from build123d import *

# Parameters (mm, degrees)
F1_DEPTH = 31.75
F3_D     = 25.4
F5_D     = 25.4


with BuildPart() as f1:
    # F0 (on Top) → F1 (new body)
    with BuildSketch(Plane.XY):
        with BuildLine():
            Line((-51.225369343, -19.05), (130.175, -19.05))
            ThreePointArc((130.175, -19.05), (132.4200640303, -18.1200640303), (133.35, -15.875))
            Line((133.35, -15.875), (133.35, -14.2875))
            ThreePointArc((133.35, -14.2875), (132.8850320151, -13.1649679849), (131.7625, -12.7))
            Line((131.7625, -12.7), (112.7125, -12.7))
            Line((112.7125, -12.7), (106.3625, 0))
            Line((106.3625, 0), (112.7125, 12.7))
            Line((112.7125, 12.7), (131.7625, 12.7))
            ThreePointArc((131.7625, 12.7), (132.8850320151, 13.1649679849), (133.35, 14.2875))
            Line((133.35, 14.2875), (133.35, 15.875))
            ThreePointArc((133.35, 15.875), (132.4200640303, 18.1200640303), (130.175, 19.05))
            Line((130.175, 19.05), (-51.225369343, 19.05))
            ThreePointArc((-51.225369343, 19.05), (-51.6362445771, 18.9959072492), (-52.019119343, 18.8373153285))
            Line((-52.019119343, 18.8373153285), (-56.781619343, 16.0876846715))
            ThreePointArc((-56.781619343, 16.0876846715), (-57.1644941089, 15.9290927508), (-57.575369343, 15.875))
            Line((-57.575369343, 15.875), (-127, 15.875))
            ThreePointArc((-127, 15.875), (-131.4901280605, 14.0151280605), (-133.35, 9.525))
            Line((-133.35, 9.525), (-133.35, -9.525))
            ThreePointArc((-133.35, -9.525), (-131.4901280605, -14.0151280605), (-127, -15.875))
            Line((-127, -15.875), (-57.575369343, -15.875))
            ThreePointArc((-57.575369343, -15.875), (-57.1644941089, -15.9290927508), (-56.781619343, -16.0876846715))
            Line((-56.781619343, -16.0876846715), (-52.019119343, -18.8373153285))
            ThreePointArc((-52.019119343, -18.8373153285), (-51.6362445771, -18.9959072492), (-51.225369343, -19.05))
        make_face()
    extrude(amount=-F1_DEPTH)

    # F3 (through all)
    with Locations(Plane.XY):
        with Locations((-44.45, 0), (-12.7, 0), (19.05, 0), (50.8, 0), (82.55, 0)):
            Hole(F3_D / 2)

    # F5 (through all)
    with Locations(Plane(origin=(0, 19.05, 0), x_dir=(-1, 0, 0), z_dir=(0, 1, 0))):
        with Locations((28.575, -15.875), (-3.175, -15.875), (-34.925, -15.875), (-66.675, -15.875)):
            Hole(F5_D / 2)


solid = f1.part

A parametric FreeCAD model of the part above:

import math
import FreeCAD as App
import Part
import Sketcher
Q = App.Units.Quantity

doc = App.newDocument("Part")
body = doc.addObject("PartDesign::Body", "Body")

# Sketch on XY plane
sketch1 = body.newObject("Sketcher::SketchObject", "Sketch")
sketch1.AttachmentSupport = (doc.getObject("XY_Plane"), [""])
sketch1.MapMode = "FlatFace"
sketch1.addGeometry([
    Part.LineSegment(App.Vector(-51.2, -19.1, 0), App.Vector(130.2, -19.1, 0)),  # 0
    Part.ArcOfCircle(Part.Circle(App.Vector(130.2, -15.9, 0), App.Vector(0, 0, 1), 3.2), math.radians(-90), math.radians(0)),  # 1
    Part.LineSegment(App.Vector(133.3, -15.9, 0), App.Vector(133.3, -14.3, 0)),  # 2
    Part.ArcOfCircle(Part.Circle(App.Vector(131.8, -14.3, 0), App.Vector(0, 0, 1), 1.6), math.radians(0), math.radians(90)),  # 3
    Part.LineSegment(App.Vector(131.8, -12.7, 0), App.Vector(112.7, -12.7, 0)),  # 4
    Part.LineSegment(App.Vector(112.7, -12.7, 0), App.Vector(106.4, 0, 0)),  # 5
    Part.LineSegment(App.Vector(106.4, 0, 0), App.Vector(112.7, 12.7, 0)),  # 6
    Part.LineSegment(App.Vector(112.7, 12.7, 0), App.Vector(131.8, 12.7, 0)),  # 7
    Part.ArcOfCircle(Part.Circle(App.Vector(131.8, 14.3, 0), App.Vector(0, 0, 1), 1.6), math.radians(-90), math.radians(0)),  # 8
    Part.LineSegment(App.Vector(133.3, 14.3, 0), App.Vector(133.3, 15.9, 0)),  # 9
    Part.ArcOfCircle(Part.Circle(App.Vector(130.2, 15.9, 0), App.Vector(0, 0, 1), 3.2), math.radians(0), math.radians(90)),  # 10
    Part.LineSegment(App.Vector(130.2, 19.1, 0), App.Vector(-51.2, 19.1, 0)),  # 11
    Part.ArcOfCircle(Part.Circle(App.Vector(-51.2, 17.5, 0), App.Vector(0, 0, 1), 1.6), math.radians(90), math.radians(120)),  # 12
    Part.LineSegment(App.Vector(-52, 18.8, 0), App.Vector(-56.8, 16.1, 0)),  # 13
    Part.ArcOfCircle(Part.Circle(App.Vector(-57.6, 17.5, 0), App.Vector(0, 0, 1), 1.6), math.radians(-90), math.radians(-60)),  # 14
    Part.LineSegment(App.Vector(-57.6, 15.9, 0), App.Vector(-127, 15.9, 0)),  # 15
    Part.ArcOfCircle(Part.Circle(App.Vector(-127, 9.5, 0), App.Vector(0, 0, 1), 6.3), math.radians(90), math.radians(180)),  # 16
    Part.LineSegment(App.Vector(-133.3, 9.5, 0), App.Vector(-133.3, -9.5, 0)),  # 17
    Part.ArcOfCircle(Part.Circle(App.Vector(-127, -9.5, 0), App.Vector(0, 0, 1), 6.3), math.radians(180), math.radians(270)),  # 18
    Part.LineSegment(App.Vector(-127, -15.9, 0), App.Vector(-57.6, -15.9, 0)),  # 19
    Part.ArcOfCircle(Part.Circle(App.Vector(-57.6, -17.5, 0), App.Vector(0, 0, 1), 1.6), math.radians(60), math.radians(90)),  # 20
    Part.LineSegment(App.Vector(-56.8, -16.1, 0), App.Vector(-52, -18.8, 0)),  # 21
    Part.ArcOfCircle(Part.Circle(App.Vector(-51.2, -17.5, 0), App.Vector(0, 0, 1), 1.6), math.radians(-120), math.radians(-90)),  # 22
], False)
sketch1.addConstraint([
    Sketcher.Constraint("Tangent", 0, 2, 1, 1),
    Sketcher.Constraint("Tangent", 1, 2, 2, 1),
    Sketcher.Constraint("Tangent", 2, 2, 3, 1),
    Sketcher.Constraint("Tangent", 3, 2, 4, 1),
    Sketcher.Constraint("Coincident", 4, 2, 5, 1),
    Sketcher.Constraint("Coincident", 5, 2, 6, 1),
    Sketcher.Constraint("Coincident", 6, 2, 7, 1),
    Sketcher.Constraint("Tangent", 7, 2, 8, 1),
    Sketcher.Constraint("Tangent", 8, 2, 9, 1),
    Sketcher.Constraint("Tangent", 9, 2, 10, 1),
    Sketcher.Constraint("Tangent", 10, 2, 11, 1),
    Sketcher.Constraint("Tangent", 11, 2, 12, 1),
    Sketcher.Constraint("Tangent", 12, 2, 13, 1),
    Sketcher.Constraint("Tangent", 13, 2, 14, 2),
    Sketcher.Constraint("Tangent", 14, 1, 15, 1),
    Sketcher.Constraint("Tangent", 15, 2, 16, 1),
    Sketcher.Constraint("Tangent", 16, 2, 17, 1),
    Sketcher.Constraint("Tangent", 17, 2, 18, 1),
    Sketcher.Constraint("Tangent", 18, 2, 19, 1),
    Sketcher.Constraint("Tangent", 19, 2, 20, 2),
    Sketcher.Constraint("Tangent", 20, 1, 21, 1),
    Sketcher.Constraint("Tangent", 21, 2, 22, 1),
    Sketcher.Constraint("Tangent", 22, 2, 0, 1),
    Sketcher.Constraint("Horizontal", 0),
    Sketcher.Constraint("Vertical", 2),
    Sketcher.Constraint("Horizontal", 4),
    Sketcher.Constraint("Horizontal", 7),
    Sketcher.Constraint("Vertical", 9),
    Sketcher.Constraint("Horizontal", 11),
    Sketcher.Constraint("Horizontal", 15),
    Sketcher.Constraint("Vertical", 17),
    Sketcher.Constraint("Horizontal", 19),
    Sketcher.Constraint("Equal", 3, 8),
    Sketcher.Constraint("Equal", 1, 10),
    Sketcher.Constraint("Equal", 8, 12),
    Sketcher.Constraint("Equal", 12, 14),
    Sketcher.Constraint("Equal", 16, 18),
    Sketcher.Constraint("Equal", 14, 20),
    Sketcher.Constraint("Equal", 20, 22),
    Sketcher.Constraint("Symmetric", 3, 3, 8, 3, -1),
    Sketcher.Constraint("Symmetric", 14, 3, 20, 3, -1),
    Sketcher.Constraint("Symmetric", 12, 3, 22, 3, -1),
    Sketcher.Constraint("PointOnObject", 5, 2, -1),
    Sketcher.Constraint("Horizontal", 12, 3, 14, 3),
    Sketcher.Constraint("Horizontal", 9, 2, 14, 1),
    Sketcher.Constraint("Vertical", 4, 2, 6, 2),
    Sketcher.Constraint("Equal", 7, 17),
    Sketcher.Constraint("Radius", 16, Q("0.25 in")),
    Sketcher.Constraint("DistanceX", 16, 3, -1, 1, Q("5 in")),
    Sketcher.Constraint("Angle", 13, Q("-150 deg")),
    Sketcher.Constraint("Radius", 1, Q("0.125 in")),
    Sketcher.Constraint("DistanceY", 1, 3, 16, 3, Q("1 in")),
    Sketcher.Constraint("DistanceX", 5, 2, 3, 2, Q("1 in")),
    Sketcher.Constraint("DistanceY", 4, 2, 6, 2, Q("1 in")),
    Sketcher.Constraint("DistanceX", -1, 1, 1, 2, Q("5.25 in")),
    Sketcher.Constraint("DistanceX", 0, 1, 0, 2, 181.400369),
])
pad1 = body.newObject("PartDesign::Pad", "Pad")
pad1.Profile = sketch1
pad1.Length = Q("1.25 in")
pad1.Reversed = True

# Sketch on XY plane
sketch2 = body.newObject("Sketcher::SketchObject", "Sketch001")
sketch2.AttachmentSupport = (doc.getObject("XY_Plane"), [""])
sketch2.MapMode = "FlatFace"
sketch2.addGeometry([
    Part.Circle(App.Vector(-44, 0, 0), App.Vector(0, 0, 1), 13),  # 0
    Part.Circle(App.Vector(-13, 0, 0), App.Vector(0, 0, 1), 13),  # 1
    Part.Circle(App.Vector(19, 0, 0), App.Vector(0, 0, 1), 13),  # 2
    Part.Circle(App.Vector(51, 0, 0), App.Vector(0, 0, 1), 13),  # 3
    Part.Circle(App.Vector(83, 0, 0), App.Vector(0, 0, 1), 13),  # 4
], False)
sketch2.addConstraint([
    Sketcher.Constraint("Equal", 0, 1),
    Sketcher.Constraint("Equal", 1, 2),
    Sketcher.Constraint("Equal", 2, 3),
    Sketcher.Constraint("Equal", 3, 4),
    Sketcher.Constraint("PointOnObject", 0, 3, -1),
    Sketcher.Constraint("PointOnObject", 1, 3, -1),
    Sketcher.Constraint("PointOnObject", 2, 3, -1),
    Sketcher.Constraint("PointOnObject", 3, 3, -1),
    Sketcher.Constraint("PointOnObject", 4, 3, -1),
    Sketcher.Constraint("Diameter", 0, Q("1 in")),
    Sketcher.Constraint("DistanceX", -1, 1, 3, 3, Q("2 in")),
    Sketcher.Constraint("DistanceX", 0, 3, 4, 3, Q("5 in")),
    Sketcher.Constraint("DistanceX", 1, 3, -1, 1, Q("0.5 in")),
    Sketcher.Constraint("DistanceX", 0, 3, 2, 3, Q("2.5 in")),
    Sketcher.Constraint("DistanceX", 0, 3, -1, 1, Q("1.75 in")),
])
doc.recompute()
hole = body.newObject("PartDesign::Hole", "Hole")
hole.Profile = sketch2
hole.ThreadType = "None"
hole.Diameter = Q("1 in")
hole.DepthType = "ThroughAll"

# Sketch on XZ plane
sketch3 = body.newObject("Sketcher::SketchObject", "Sketch002")
sketch3.AttachmentSupport = (doc.getObject("XZ_Plane"), [""])
sketch3.MapMode = "FlatFace"
sketch3.AttachmentOffset = App.Placement(App.Vector(0, 0, -0.75 * 25.4), App.Rotation())
sketch3.addGeometry([
    Part.Circle(App.Vector(-29, -16, 0), App.Vector(0, 0, 1), 13),
    Part.Circle(App.Vector(3, -16, 0), App.Vector(0, 0, 1), 13),
    Part.Circle(App.Vector(35, -16, 0), App.Vector(0, 0, 1), 13),
    Part.Circle(App.Vector(67, -16, 0), App.Vector(0, 0, 1), 13),
], False)
sketch3.addConstraint([
    Sketcher.Constraint("Equal", 0, 1),
    Sketcher.Constraint("Equal", 1, 2),
    Sketcher.Constraint("Equal", 2, 3),
    Sketcher.Constraint("Horizontal", 0, 3, 1, 3),
    Sketcher.Constraint("Horizontal", 1, 3, 2, 3),
    Sketcher.Constraint("Horizontal", 2, 3, 3, 3),
    Sketcher.Constraint("Diameter", 0, Q("1 in")),
    Sketcher.Constraint("DistanceX", 0, 3, 2, 3, Q("2.5 in")),
    Sketcher.Constraint("DistanceX", 1, 3, 3, 3, Q("2.5 in")),
    Sketcher.Constraint("DistanceX", 0, 3, 1, 3, Q("1.25 in")),
    Sketcher.Constraint("DistanceX", 0, 3, -1, 1, Q("1.125 in")),
    Sketcher.Constraint("DistanceY", 0, 3, -1, 1, Q("0.625 in")),
])
doc.recompute()
hole2 = body.newObject("PartDesign::Hole", "Hole001")
hole2.Profile = sketch3
hole2.ThreadType = "None"
hole2.Diameter = Q("1 in")
hole2.DepthType = "ThroughAll"
hole2.Reversed = True

doc.recompute()
